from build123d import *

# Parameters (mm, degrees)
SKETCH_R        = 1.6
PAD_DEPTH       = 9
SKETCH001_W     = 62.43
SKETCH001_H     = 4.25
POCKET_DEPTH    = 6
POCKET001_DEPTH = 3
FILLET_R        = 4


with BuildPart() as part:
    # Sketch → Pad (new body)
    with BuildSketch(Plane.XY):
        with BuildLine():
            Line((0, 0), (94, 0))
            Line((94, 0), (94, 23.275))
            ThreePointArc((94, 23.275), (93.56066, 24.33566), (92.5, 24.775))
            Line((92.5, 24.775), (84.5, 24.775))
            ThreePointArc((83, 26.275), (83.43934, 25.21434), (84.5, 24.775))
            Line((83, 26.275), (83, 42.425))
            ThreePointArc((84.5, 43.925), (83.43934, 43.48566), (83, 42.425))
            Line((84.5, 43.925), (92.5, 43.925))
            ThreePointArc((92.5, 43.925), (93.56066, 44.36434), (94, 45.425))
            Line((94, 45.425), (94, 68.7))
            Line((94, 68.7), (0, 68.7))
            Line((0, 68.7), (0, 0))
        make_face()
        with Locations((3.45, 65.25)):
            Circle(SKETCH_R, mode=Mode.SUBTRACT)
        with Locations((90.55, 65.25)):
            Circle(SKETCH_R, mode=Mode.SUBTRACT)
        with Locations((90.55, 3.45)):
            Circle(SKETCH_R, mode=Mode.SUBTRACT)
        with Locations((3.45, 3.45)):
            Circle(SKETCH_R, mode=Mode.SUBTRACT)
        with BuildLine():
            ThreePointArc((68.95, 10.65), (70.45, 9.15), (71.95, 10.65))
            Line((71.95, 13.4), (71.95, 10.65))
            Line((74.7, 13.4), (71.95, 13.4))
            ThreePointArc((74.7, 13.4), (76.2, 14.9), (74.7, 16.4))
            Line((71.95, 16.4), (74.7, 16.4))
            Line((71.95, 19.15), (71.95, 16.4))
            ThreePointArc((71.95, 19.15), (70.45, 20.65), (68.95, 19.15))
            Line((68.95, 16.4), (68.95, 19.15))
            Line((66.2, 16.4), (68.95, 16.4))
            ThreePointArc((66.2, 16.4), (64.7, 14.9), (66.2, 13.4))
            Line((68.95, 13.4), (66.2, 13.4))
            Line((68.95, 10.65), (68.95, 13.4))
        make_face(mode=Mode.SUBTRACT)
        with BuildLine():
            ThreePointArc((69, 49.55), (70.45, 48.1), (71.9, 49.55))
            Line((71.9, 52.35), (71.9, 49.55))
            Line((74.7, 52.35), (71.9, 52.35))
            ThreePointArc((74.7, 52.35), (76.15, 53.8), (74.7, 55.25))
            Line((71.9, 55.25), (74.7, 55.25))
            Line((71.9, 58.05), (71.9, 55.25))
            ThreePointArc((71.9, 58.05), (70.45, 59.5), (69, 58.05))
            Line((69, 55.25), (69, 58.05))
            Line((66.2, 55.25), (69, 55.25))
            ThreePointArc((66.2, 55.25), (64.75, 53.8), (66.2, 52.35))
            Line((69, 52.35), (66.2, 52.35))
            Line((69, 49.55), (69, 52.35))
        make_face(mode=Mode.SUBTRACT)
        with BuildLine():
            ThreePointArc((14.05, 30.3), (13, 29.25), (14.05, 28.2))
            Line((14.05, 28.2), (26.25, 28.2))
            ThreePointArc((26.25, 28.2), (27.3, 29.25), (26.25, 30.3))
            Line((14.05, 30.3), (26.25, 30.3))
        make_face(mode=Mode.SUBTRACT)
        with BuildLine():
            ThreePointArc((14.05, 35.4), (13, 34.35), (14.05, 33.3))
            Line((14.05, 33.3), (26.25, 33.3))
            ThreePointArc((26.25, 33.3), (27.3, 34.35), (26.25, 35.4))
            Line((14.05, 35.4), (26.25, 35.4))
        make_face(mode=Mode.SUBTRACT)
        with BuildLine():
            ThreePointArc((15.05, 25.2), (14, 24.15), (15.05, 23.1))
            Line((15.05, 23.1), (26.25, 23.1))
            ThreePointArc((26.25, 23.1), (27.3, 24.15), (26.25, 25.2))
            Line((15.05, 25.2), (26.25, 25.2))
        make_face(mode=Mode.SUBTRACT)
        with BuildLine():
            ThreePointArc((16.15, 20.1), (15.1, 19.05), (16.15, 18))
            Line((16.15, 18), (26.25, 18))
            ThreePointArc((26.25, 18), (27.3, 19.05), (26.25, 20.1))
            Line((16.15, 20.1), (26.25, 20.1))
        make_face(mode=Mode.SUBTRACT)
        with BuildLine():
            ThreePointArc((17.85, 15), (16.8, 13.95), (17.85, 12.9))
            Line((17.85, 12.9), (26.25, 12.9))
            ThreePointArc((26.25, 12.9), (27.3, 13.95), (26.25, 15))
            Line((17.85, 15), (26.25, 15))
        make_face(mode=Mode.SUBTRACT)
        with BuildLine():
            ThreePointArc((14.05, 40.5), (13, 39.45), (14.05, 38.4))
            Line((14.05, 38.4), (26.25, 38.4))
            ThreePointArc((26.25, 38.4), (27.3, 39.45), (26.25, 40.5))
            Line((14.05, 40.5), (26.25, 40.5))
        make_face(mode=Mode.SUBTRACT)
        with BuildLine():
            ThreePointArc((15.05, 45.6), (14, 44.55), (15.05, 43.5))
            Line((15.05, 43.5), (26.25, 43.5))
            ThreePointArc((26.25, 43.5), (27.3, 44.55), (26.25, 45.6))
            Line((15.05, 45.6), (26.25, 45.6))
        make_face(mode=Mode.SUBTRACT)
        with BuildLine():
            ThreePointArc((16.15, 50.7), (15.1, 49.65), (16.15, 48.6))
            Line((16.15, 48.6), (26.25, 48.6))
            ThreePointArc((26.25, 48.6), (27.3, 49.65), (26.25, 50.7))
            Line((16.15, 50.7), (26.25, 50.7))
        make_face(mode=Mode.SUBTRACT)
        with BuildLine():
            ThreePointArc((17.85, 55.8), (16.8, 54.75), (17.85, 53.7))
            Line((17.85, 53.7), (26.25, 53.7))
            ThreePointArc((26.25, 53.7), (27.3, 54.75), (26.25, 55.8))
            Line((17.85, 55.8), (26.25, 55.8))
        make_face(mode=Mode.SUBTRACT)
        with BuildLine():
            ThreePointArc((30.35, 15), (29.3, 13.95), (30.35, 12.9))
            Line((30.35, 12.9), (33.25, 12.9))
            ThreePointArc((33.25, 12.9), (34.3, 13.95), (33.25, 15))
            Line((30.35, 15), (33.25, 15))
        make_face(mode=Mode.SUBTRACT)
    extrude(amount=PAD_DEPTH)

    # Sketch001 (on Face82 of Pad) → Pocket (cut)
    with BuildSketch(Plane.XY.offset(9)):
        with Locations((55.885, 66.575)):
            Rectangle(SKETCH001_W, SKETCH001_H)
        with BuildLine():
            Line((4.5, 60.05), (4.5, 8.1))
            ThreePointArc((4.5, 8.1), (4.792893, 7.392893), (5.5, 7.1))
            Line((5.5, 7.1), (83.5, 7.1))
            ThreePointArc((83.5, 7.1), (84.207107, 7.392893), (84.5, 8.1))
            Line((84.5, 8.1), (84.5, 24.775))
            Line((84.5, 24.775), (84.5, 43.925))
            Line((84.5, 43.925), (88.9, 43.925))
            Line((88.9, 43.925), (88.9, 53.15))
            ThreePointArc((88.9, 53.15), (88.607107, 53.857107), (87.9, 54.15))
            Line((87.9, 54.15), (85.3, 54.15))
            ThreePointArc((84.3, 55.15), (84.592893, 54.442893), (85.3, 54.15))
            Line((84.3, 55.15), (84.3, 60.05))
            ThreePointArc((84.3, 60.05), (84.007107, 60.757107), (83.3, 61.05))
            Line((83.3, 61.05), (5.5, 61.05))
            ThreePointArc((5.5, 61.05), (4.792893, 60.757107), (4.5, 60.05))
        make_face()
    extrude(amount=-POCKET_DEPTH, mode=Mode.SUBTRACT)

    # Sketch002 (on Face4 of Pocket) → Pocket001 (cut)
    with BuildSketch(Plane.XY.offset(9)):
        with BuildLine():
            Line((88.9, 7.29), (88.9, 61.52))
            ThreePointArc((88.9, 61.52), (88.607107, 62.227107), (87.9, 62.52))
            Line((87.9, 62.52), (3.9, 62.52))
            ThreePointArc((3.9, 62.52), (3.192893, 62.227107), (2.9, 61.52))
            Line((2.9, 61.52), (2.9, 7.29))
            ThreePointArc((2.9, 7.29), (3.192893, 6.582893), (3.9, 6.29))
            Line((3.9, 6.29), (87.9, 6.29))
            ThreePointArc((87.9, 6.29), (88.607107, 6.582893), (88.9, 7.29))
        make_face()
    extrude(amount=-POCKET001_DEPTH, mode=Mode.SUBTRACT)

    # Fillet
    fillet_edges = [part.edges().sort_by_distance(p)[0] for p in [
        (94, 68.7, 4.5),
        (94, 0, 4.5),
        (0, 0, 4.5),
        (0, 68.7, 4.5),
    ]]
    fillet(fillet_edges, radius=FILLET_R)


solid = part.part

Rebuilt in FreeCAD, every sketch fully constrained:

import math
import FreeCAD as App
import Part
import Sketcher
from FreeCAD import Vector
Q = App.Units.Quantity


def edges_at(feature, points):
    """Names of the edges that pass closest to the given points."""
    edges = feature.Shape.Edges
    near = lambda p: min(range(len(edges)), key=lambda i: edges[i].distToShape(Part.Vertex(*p))[0])
    return sorted({f"Edge{near(p) + 1}" for p in points})

doc = App.newDocument("Part")
params = doc.addObject("Spreadsheet::Sheet", "Params")
for row, (alias, value) in enumerate([
    ("sketch1_diameter", "3.2 mm"),
    ("sketch1_radius", "1.500001 mm"),
    ("sketch1_width", "94 mm"),
    ("sketch1_width2", "8 mm"),
    ("sketch1_radius2", "1.05 mm"),
    ("pad1_length", "9 mm"),
    ("sketch2_radius", "0.999999 mm"),
    ("sketch2_width", "78 mm"),
    ("sketch2_width2", "4.4 mm"),
    ("sketch2_width3", "2.6 mm"),
    ("sketch2_height", "4.9 mm"),
    ("pocket1_length", "6 mm"),
    ("sketch3_radius", "0.999999 mm"),
    ("sketch3_width", "84 mm"),
    ("sketch3_height", "54.23 mm"),
    ("pocket2_length", "3 mm"),
    ("fillet_radius", "4 mm"),
], start=1):
    params.set(f"A{row}", alias)
    params.set(f"B{row}", "=" + value)
    params.setAlias(f"B{row}", alias)

body = doc.addObject("PartDesign::Body", "Body")

sketch1 = body.newObject("Sketcher::SketchObject", "Sketch")
sketch1.AttachmentSupport = (doc.getObject("XY_Plane"), [""])
sketch1.MapMode = "FlatFace"
sketch1.addGeometry(Part.LineSegment(Vector(0, 0, 0), Vector(94, 0, 0)), False)
sketch1.addGeometry(Part.LineSegment(Vector(94, 0, 0), Vector(94, 23.275, 0)), False)
sketch1.addGeometry(Part.ArcOfCircle(Part.Circle(Vector(92.499999, 23.274999, 0), Vector(0, 0, 1), 1.500001), math.radians(0.000022), math.radians(89.999978)), False)
sketch1.addGeometry(Part.LineSegment(Vector(92.5, 24.775, 0), Vector(84.5, 24.775, 0)), False)
sketch1.addGeometry(Part.ArcOfCircle(Part.Circle(Vector(84.500001, 26.275001, 0), Vector(0, 0, 1), 1.500001), math.radians(-179.999978), math.radians(-90.000022)), False)
sketch1.addGeometry(Part.LineSegment(Vector(83, 26.275, 0), Vector(83, 42.425, 0)), False)
sketch1.addGeometry(Part.ArcOfCircle(Part.Circle(Vector(84.500001, 42.424999, 0), Vector(0, 0, 1), 1.500001), math.radians(90.000022), math.radians(179.999978)), False)
sketch1.addGeometry(Part.LineSegment(Vector(84.5, 43.925, 0), Vector(92.5, 43.925, 0)), False)
sketch1.addGeometry(Part.ArcOfCircle(Part.Circle(Vector(92.499999, 45.425001, 0), Vector(0, 0, 1), 1.500001), math.radians(-89.999978), math.radians(-0.000022)), False)
sketch1.addGeometry(Part.LineSegment(Vector(94, 45.425, 0), Vector(94, 68.7, 0)), False)
sketch1.addGeometry(Part.LineSegment(Vector(94, 68.7, 0), Vector(0, 68.7, 0)), False)
sketch1.addGeometry(Part.LineSegment(Vector(0, 68.7, 0), Vector(0, 0, 0)), False)
sketch1.addGeometry(Part.Circle(Vector(3.45, 3.45, 0), Vector(0, 0, 1), 1.6), False)
sketch1.addGeometry(Part.ArcOfCircle(Part.Circle(Vector(17.85, 13.95, 0), Vector(0, 0, 1), 1.05), math.radians(90), math.radians(270)), False)
sketch1.addGeometry(Part.LineSegment(Vector(17.85, 15, 0), Vector(26.25, 15, 0)), False)
sketch1.addGeometry(Part.ArcOfCircle(Part.Circle(Vector(26.25, 13.95, 0), Vector(0, 0, 1), 1.05), math.radians(-90), math.radians(90)), False)
sketch1.addGeometry(Part.LineSegment(Vector(26.25, 12.9, 0), Vector(17.85, 12.9, 0)), False)
sketch1.addGeometry(Part.ArcOfCircle(Part.Circle(Vector(30.35, 13.95, 0), Vector(0, 0, 1), 1.05), math.radians(90), math.radians(270)), False)
sketch1.addGeometry(Part.LineSegment(Vector(30.35, 15, 0), Vector(33.25, 15, 0)), False)
sketch1.addGeometry(Part.ArcOfCircle(Part.Circle(Vector(33.25, 13.95, 0), Vector(0, 0, 1), 1.05), math.radians(-90), math.radians(90)), False)
sketch1.addGeometry(Part.LineSegment(Vector(33.25, 12.9, 0), Vector(30.35, 12.9, 0)), False)
sketch1.addGeometry(Part.ArcOfCircle(Part.Circle(Vector(16.15, 19.05, 0), Vector(0, 0, 1), 1.05), math.radians(90), math.radians(270)), False)
sketch1.addGeometry(Part.LineSegment(Vector(16.15, 20.1, 0), Vector(26.25, 20.1, 0)), False)
sketch1.addGeometry(Part.ArcOfCircle(Part.Circle(Vector(26.25, 19.05, 0), Vector(0, 0, 1), 1.05), math.radians(-90), math.radians(90)), False)
sketch1.addGeometry(Part.LineSegment(Vector(26.25, 18, 0), Vector(16.15, 18, 0)), False)
sketch1.addGeometry(Part.ArcOfCircle(Part.Circle(Vector(15.05, 24.15, 0), Vector(0, 0, 1), 1.05), math.radians(90), math.radians(270)), False)
sketch1.addGeometry(Part.LineSegment(Vector(15.05, 25.2, 0), Vector(26.25, 25.2, 0)), False)
sketch1.addGeometry(Part.ArcOfCircle(Part.Circle(Vector(26.25, 24.15, 0), Vector(0, 0, 1), 1.05), math.radians(-90), math.radians(90)), False)
sketch1.addGeometry(Part.LineSegment(Vector(26.25, 23.1, 0), Vector(15.05, 23.1, 0)), False)
sketch1.addGeometry(Part.ArcOfCircle(Part.Circle(Vector(14.05, 29.25, 0), Vector(0, 0, 1), 1.05), math.radians(90), math.radians(270)), False)
sketch1.addGeometry(Part.LineSegment(Vector(14.05, 30.3, 0), Vector(26.25, 30.3, 0)), False)
sketch1.addGeometry(Part.ArcOfCircle(Part.Circle(Vector(26.25, 29.25, 0), Vector(0, 0, 1), 1.05), math.radians(-90), math.radians(90)), False)
sketch1.addGeometry(Part.LineSegment(Vector(26.25, 28.2, 0), Vector(14.05, 28.2, 0)), False)
sketch1.addGeometry(Part.Circle(Vector(90.55, 3.45, 0), Vector(0, 0, 1), 1.6), False)
sketch1.addGeometry(Part.ArcOfCircle(Part.Circle(Vector(70.45, 10.65, 0), Vector(0, 0, 1), 1.5), math.radians(180), math.radians(360)), False)
sketch1.addGeometry(Part.LineSegment(Vector(68.95, 10.65, 0), Vector(68.95, 13.4, 0)), False)
sketch1.addGeometry(Part.LineSegment(Vector(68.95, 13.4, 0), Vector(66.2, 13.4, 0)), False)
sketch1.addGeometry(Part.ArcOfCircle(Part.Circle(Vector(66.2, 14.9, 0), Vector(0, 0, 1), 1.5), math.radians(90), math.radians(270)), False)
sketch1.addGeometry(Part.LineSegment(Vector(66.2, 16.4, 0), Vector(68.95, 16.4, 0)), False)
sketch1.addGeometry(Part.LineSegment(Vector(68.95, 16.4, 0), Vector(68.95, 19.15, 0)), False)
sketch1.addGeometry(Part.ArcOfCircle(Part.Circle(Vector(70.45, 19.15, 0), Vector(0, 0, 1), 1.5), math.radians(0), math.radians(180)), False)
sketch1.addGeometry(Part.LineSegment(Vector(71.95, 19.15, 0), Vector(71.95, 16.4, 0)), False)
sketch1.addGeometry(Part.LineSegment(Vector(71.95, 16.4, 0), Vector(74.7, 16.4, 0)), False)
sketch1.addGeometry(Part.ArcOfCircle(Part.Circle(Vector(74.7, 14.9, 0), Vector(0, 0, 1), 1.5), math.radians(-90), math.radians(90)), False)
sketch1.addGeometry(Part.LineSegment(Vector(74.7, 13.4, 0), Vector(71.95, 13.4, 0)), False)
sketch1.addGeometry(Part.LineSegment(Vector(71.95, 13.4, 0), Vector(71.95, 10.65, 0)), False)
sketch1.addGeometry(Part.ArcOfCircle(Part.Circle(Vector(14.05, 34.35, 0), Vector(0, 0, 1), 1.05), math.radians(90), math.radians(270)), False)
sketch1.addGeometry(Part.LineSegment(Vector(14.05, 35.4, 0), Vector(26.25, 35.4, 0)), False)
sketch1.addGeometry(Part.ArcOfCircle(Part.Circle(Vector(26.25, 34.35, 0), Vector(0, 0, 1), 1.05), math.radians(-90), math.radians(90)), False)
sketch1.addGeometry(Part.LineSegment(Vector(26.25, 33.3, 0), Vector(14.05, 33.3, 0)), False)
sketch1.addGeometry(Part.ArcOfCircle(Part.Circle(Vector(14.05, 39.45, 0), Vector(0, 0, 1), 1.05), math.radians(90), math.radians(270)), False)
sketch1.addGeometry(Part.LineSegment(Vector(14.05, 40.5, 0), Vector(26.25, 40.5, 0)), False)
sketch1.addGeometry(Part.ArcOfCircle(Part.Circle(Vector(26.25, 39.45, 0), Vector(0, 0, 1), 1.05), math.radians(-90), math.radians(90)), False)
sketch1.addGeometry(Part.LineSegment(Vector(26.25, 38.4, 0), Vector(14.05, 38.4, 0)), False)
sketch1.addGeometry(Part.ArcOfCircle(Part.Circle(Vector(15.05, 44.55, 0), Vector(0, 0, 1), 1.05), math.radians(90), math.radians(270)), False)
sketch1.addGeometry(Part.LineSegment(Vector(15.05, 45.6, 0), Vector(26.25, 45.6, 0)), False)
sketch1.addGeometry(Part.ArcOfCircle(Part.Circle(Vector(26.25, 44.55, 0), Vector(0, 0, 1), 1.05), math.radians(-90), math.radians(90)), False)
sketch1.addGeometry(Part.LineSegment(Vector(26.25, 43.5, 0), Vector(15.05, 43.5, 0)), False)
sketch1.addGeometry(Part.ArcOfCircle(Part.Circle(Vector(16.15, 49.65, 0), Vector(0, 0, 1), 1.05), math.radians(90), math.radians(270)), False)
sketch1.addGeometry(Part.LineSegment(Vector(16.15, 50.7, 0), Vector(26.25, 50.7, 0)), False)
sketch1.addGeometry(Part.ArcOfCircle(Part.Circle(Vector(26.25, 49.65, 0), Vector(0, 0, 1), 1.05), math.radians(-90), math.radians(90)), False)
sketch1.addGeometry(Part.LineSegment(Vector(26.25, 48.6, 0), Vector(16.15, 48.6, 0)), False)
sketch1.addGeometry(Part.ArcOfCircle(Part.Circle(Vector(17.85, 54.75, 0), Vector(0, 0, 1), 1.05), math.radians(90), math.radians(270)), False)
sketch1.addGeometry(Part.LineSegment(Vector(17.85, 55.8, 0), Vector(26.25, 55.8, 0)), False)
sketch1.addGeometry(Part.ArcOfCircle(Part.Circle(Vector(26.25, 54.75, 0), Vector(0, 0, 1), 1.05), math.radians(-90), math.radians(90)), False)
sketch1.addGeometry(Part.LineSegment(Vector(26.25, 53.7, 0), Vector(17.85, 53.7, 0)), False)
sketch1.addGeometry(Part.Circle(Vector(3.45, 65.25, 0), Vector(0, 0, 1), 1.6), False)
sketch1.addGeometry(Part.ArcOfCircle(Part.Circle(Vector(70.45, 49.55, 0), Vector(0, 0, 1), 1.45), math.radians(180), math.radians(360)), False)
sketch1.addGeometry(Part.LineSegment(Vector(69, 49.55, 0), Vector(69, 52.35, 0)), False)
sketch1.addGeometry(Part.LineSegment(Vector(69, 52.35, 0), Vector(66.2, 52.35, 0)), False)
sketch1.addGeometry(Part.ArcOfCircle(Part.Circle(Vector(66.2, 53.8, 0), Vector(0, 0, 1), 1.45), math.radians(90), math.radians(270)), False)
sketch1.addGeometry(Part.LineSegment(Vector(66.2, 55.25, 0), Vector(69, 55.25, 0)), False)
sketch1.addGeometry(Part.LineSegment(Vector(69, 55.25, 0), Vector(69, 58.05, 0)), False)
sketch1.addGeometry(Part.ArcOfCircle(Part.Circle(Vector(70.45, 58.05, 0), Vector(0, 0, 1), 1.45), math.radians(0), math.radians(180)), False)
sketch1.addGeometry(Part.LineSegment(Vector(71.9, 58.05, 0), Vector(71.9, 55.25, 0)), False)
sketch1.addGeometry(Part.LineSegment(Vector(71.9, 55.25, 0), Vector(74.7, 55.25, 0)), False)
sketch1.addGeometry(Part.ArcOfCircle(Part.Circle(Vector(74.7, 53.8, 0), Vector(0, 0, 1), 1.45), math.radians(-90), math.radians(90)), False)
sketch1.addGeometry(Part.LineSegment(Vector(74.7, 52.35, 0), Vector(71.9, 52.35, 0)), False)
sketch1.addGeometry(Part.LineSegment(Vector(71.9, 52.35, 0), Vector(71.9, 49.55, 0)), False)
sketch1.addGeometry(Part.Circle(Vector(90.55, 65.25, 0), Vector(0, 0, 1), 1.6), False)
sketch1.addConstraint(Sketcher.Constraint("Coincident", 0, 2, 1, 1))
sketch1.addConstraint(Sketcher.Constraint("Tangent", 1, 2, 2, 1))
sketch1.addConstraint(Sketcher.Constraint("Tangent", 2, 2, 3, 1))
sketch1.addConstraint(Sketcher.Constraint("Tangent", 3, 2, 4, 2))
sketch1.addConstraint(Sketcher.Constraint("Tangent", 4, 1, 5, 1))
sketch1.addConstraint(Sketcher.Constraint("Tangent", 5, 2, 6, 2))
sketch1.addConstraint(Sketcher.Constraint("Tangent", 6, 1, 7, 1))
sketch1.addConstraint(Sketcher.Constraint("Tangent", 7, 2, 8, 1))
sketch1.addConstraint(Sketcher.Constraint("Tangent", 8, 2, 9, 1))
sketch1.addConstraint(Sketcher.Constraint("Coincident", 9, 2, 10, 1))
sketch1.addConstraint(Sketcher.Constraint("Coincident", 10, 2, 11, 1))
sketch1.addConstraint(Sketcher.Constraint("Coincident", 11, 2, 0, 1))
sketch1.addConstraint(Sketcher.Constraint("Tangent", 13, 1, 14, 1))
sketch1.addConstraint(Sketcher.Constraint("Tangent", 14, 2, 15, 2))
sketch1.addConstraint(Sketcher.Constraint("Tangent", 15, 1, 16, 1))
sketch1.addConstraint(Sketcher.Constraint("Tangent", 16, 2, 13, 2))
sketch1.addConstraint(Sketcher.Constraint("Tangent", 17, 1, 18, 1))
sketch1.addConstraint(Sketcher.Constraint("Tangent", 18, 2, 19, 2))
sketch1.addConstraint(Sketcher.Constraint("Tangent", 19, 1, 20, 1))
sketch1.addConstraint(Sketcher.Constraint("Tangent", 20, 2, 17, 2))
sketch1.addConstraint(Sketcher.Constraint("Tangent", 21, 1, 22, 1))
sketch1.addConstraint(Sketcher.Constraint("Tangent", 22, 2, 23, 2))
sketch1.addConstraint(Sketcher.Constraint("Tangent", 23, 1, 24, 1))
sketch1.addConstraint(Sketcher.Constraint("Tangent", 24, 2, 21, 2))
sketch1.addConstraint(Sketcher.Constraint("Tangent", 25, 1, 26, 1))
sketch1.addConstraint(Sketcher.Constraint("Tangent", 26, 2, 27, 2))
sketch1.addConstraint(Sketcher.Constraint("Tangent", 27, 1, 28, 1))
sketch1.addConstraint(Sketcher.Constraint("Tangent", 28, 2, 25, 2))
sketch1.addConstraint(Sketcher.Constraint("Tangent", 29, 1, 30, 1))
sketch1.addConstraint(Sketcher.Constraint("Tangent", 30, 2, 31, 2))
sketch1.addConstraint(Sketcher.Constraint("Tangent", 31, 1, 32, 1))
sketch1.addConstraint(Sketcher.Constraint("Tangent", 32, 2, 29, 2))
sketch1.addConstraint(Sketcher.Constraint("Tangent", 34, 1, 35, 1))
sketch1.addConstraint(Sketcher.Constraint("Coincident", 35, 2, 36, 1))
sketch1.addConstraint(Sketcher.Constraint("Tangent", 36, 2, 37, 2))
sketch1.addConstraint(Sketcher.Constraint("Tangent", 37, 1, 38, 1))
sketch1.addConstraint(Sketcher.Constraint("Coincident", 38, 2, 39, 1))
sketch1.addConstraint(Sketcher.Constraint("Tangent", 39, 2, 40, 2))
sketch1.addConstraint(Sketcher.Constraint("Tangent", 40, 1, 41, 1))
sketch1.addConstraint(Sketcher.Constraint("Coincident", 41, 2, 42, 1))
sketch1.addConstraint(Sketcher.Constraint("Tangent", 42, 2, 43, 2))
sketch1.addConstraint(Sketcher.Constraint("Tangent", 43, 1, 44, 1))
sketch1.addConstraint(Sketcher.Constraint("Coincident", 44, 2, 45, 1))
sketch1.addConstraint(Sketcher.Constraint("Tangent", 45, 2, 34, 2))
sketch1.addConstraint(Sketcher.Constraint("Tangent", 46, 1, 47, 1))
sketch1.addConstraint(Sketcher.Constraint("Tangent", 47, 2, 48, 2))
sketch1.addConstraint(Sketcher.Constraint("Tangent", 48, 1, 49, 1))
sketch1.addConstraint(Sketcher.Constraint("Tangent", 49, 2, 46, 2))
sketch1.addConstraint(Sketcher.Constraint("Tangent", 50, 1, 51, 1))
sketch1.addConstraint(Sketcher.Constraint("Tangent", 51, 2, 52, 2))
sketch1.addConstraint(Sketcher.Constraint("Tangent", 52, 1, 53, 1))
sketch1.addConstraint(Sketcher.Constraint("Tangent", 53, 2, 50, 2))
sketch1.addConstraint(Sketcher.Constraint("Tangent", 54, 1, 55, 1))
sketch1.addConstraint(Sketcher.Constraint("Tangent", 55, 2, 56, 2))
sketch1.addConstraint(Sketcher.Constraint("Tangent", 56, 1, 57, 1))
sketch1.addConstraint(Sketcher.Constraint("Tangent", 57, 2, 54, 2))
sketch1.addConstraint(Sketcher.Constraint("Tangent", 58, 1, 59, 1))
sketch1.addConstraint(Sketcher.Constraint("Tangent", 59, 2, 60, 2))
sketch1.addConstraint(Sketcher.Constraint("Tangent", 60, 1, 61, 1))
sketch1.addConstraint(Sketcher.Constraint("Tangent", 61, 2, 58, 2))
sketch1.addConstraint(Sketcher.Constraint("Tangent", 62, 1, 63, 1))
sketch1.addConstraint(Sketcher.Constraint("Tangent", 63, 2, 64, 2))
sketch1.addConstraint(Sketcher.Constraint("Tangent", 64, 1, 65, 1))
sketch1.addConstraint(Sketcher.Constraint("Tangent", 65, 2, 62, 2))
sketch1.addConstraint(Sketcher.Constraint("Tangent", 67, 1, 68, 1))
sketch1.addConstraint(Sketcher.Constraint("Coincident", 68, 2, 69, 1))
sketch1.addConstraint(Sketcher.Constraint("Tangent", 69, 2, 70, 2))
sketch1.addConstraint(Sketcher.Constraint("Tangent", 70, 1, 71, 1))
sketch1.addConstraint(Sketcher.Constraint("Coincident", 71, 2, 72, 1))
sketch1.addConstraint(Sketcher.Constraint("Tangent", 72, 2, 73, 2))
sketch1.addConstraint(Sketcher.Constraint("Tangent", 73, 1, 74, 1))
sketch1.addConstraint(Sketcher.Constraint("Coincident", 74, 2, 75, 1))
sketch1.addConstraint(Sketcher.Constraint("Tangent", 75, 2, 76, 2))
sketch1.addConstraint(Sketcher.Constraint("Tangent", 76, 1, 77, 1))
sketch1.addConstraint(Sketcher.Constraint("Coincident", 77, 2, 78, 1))
sketch1.addConstraint(Sketcher.Constraint("Tangent", 78, 2, 67, 2))
sketch1.addConstraint(Sketcher.Constraint("Horizontal", 0))
sketch1.addConstraint(Sketcher.Constraint("Vertical", 1))
sketch1.addConstraint(Sketcher.Constraint("Horizontal", 3))
sketch1.addConstraint(Sketcher.Constraint("Vertical", 5))
sketch1.addConstraint(Sketcher.Constraint("Horizontal", 7))
sketch1.addConstraint(Sketcher.Constraint("Vertical", 9))
sketch1.addConstraint(Sketcher.Constraint("Horizontal", 10))
sketch1.addConstraint(Sketcher.Constraint("Vertical", 11))
sketch1.addConstraint(Sketcher.Constraint("Horizontal", 14))
sketch1.addConstraint(Sketcher.Constraint("Horizontal", 16))
sketch1.addConstraint(Sketcher.Constraint("Horizontal", 18))
sketch1.addConstraint(Sketcher.Constraint("Horizontal", 20))
sketch1.addConstraint(Sketcher.Constraint("Horizontal", 22))
sketch1.addConstraint(Sketcher.Constraint("Horizontal", 24))
sketch1.addConstraint(Sketcher.Constraint("Horizontal", 26))
sketch1.addConstraint(Sketcher.Constraint("Horizontal", 28))
sketch1.addConstraint(Sketcher.Constraint("Horizontal", 30))
sketch1.addConstraint(Sketcher.Constraint("Horizontal", 32))
sketch1.addConstraint(Sketcher.Constraint("Vertical", 35))
sketch1.addConstraint(Sketcher.Constraint("Horizontal", 36))
sketch1.addConstraint(Sketcher.Constraint("Horizontal", 38))
sketch1.addConstraint(Sketcher.Constraint("Vertical", 39))
sketch1.addConstraint(Sketcher.Constraint("Vertical", 41))
sketch1.addConstraint(Sketcher.Constraint("Horizontal", 42))
sketch1.addConstraint(Sketcher.Constraint("Horizontal", 44))
sketch1.addConstraint(Sketcher.Constraint("Vertical", 45))
sketch1.addConstraint(Sketcher.Constraint("Horizontal", 47))
sketch1.addConstraint(Sketcher.Constraint("Horizontal", 49))
sketch1.addConstraint(Sketcher.Constraint("Horizontal", 51))
sketch1.addConstraint(Sketcher.Constraint("Horizontal", 53))
sketch1.addConstraint(Sketcher.Constraint("Horizontal", 55))
sketch1.addConstraint(Sketcher.Constraint("Horizontal", 57))
sketch1.addConstraint(Sketcher.Constraint("Horizontal", 59))
sketch1.addConstraint(Sketcher.Constraint("Horizontal", 61))
sketch1.addConstraint(Sketcher.Constraint("Horizontal", 63))
sketch1.addConstraint(Sketcher.Constraint("Horizontal", 65))
sketch1.addConstraint(Sketcher.Constraint("Vertical", 68))
sketch1.addConstraint(Sketcher.Constraint("Horizontal", 69))
sketch1.addConstraint(Sketcher.Constraint("Horizontal", 71))
sketch1.addConstraint(Sketcher.Constraint("Vertical", 72))
sketch1.addConstraint(Sketcher.Constraint("Vertical", 74))
sketch1.addConstraint(Sketcher.Constraint("Horizontal", 75))
sketch1.addConstraint(Sketcher.Constraint("Horizontal", 77))
sketch1.addConstraint(Sketcher.Constraint("Vertical", 78))
sketch1.addConstraint(Sketcher.Constraint("Coincident", 11, 2, -1, 1))
sketch1.addConstraint(Sketcher.Constraint("Equal", 2, 4))
sketch1.addConstraint(Sketcher.Constraint("Equal", 4, 6))
sketch1.addConstraint(Sketcher.Constraint("Equal", 6, 8))
sketch1.addConstraint(Sketcher.Constraint("Equal", 15, 17))
sketch1.addConstraint(Sketcher.Constraint("Equal", 19, 21))
sketch1.addConstraint(Sketcher.Constraint("Equal", 23, 25))
sketch1.addConstraint(Sketcher.Constraint("Equal", 27, 29))
sketch1.addConstraint(Sketcher.Constraint("Equal", 12, 33))
sketch1.addConstraint(Sketcher.Constraint("Equal", 8, 34))
sketch1.addConstraint(Sketcher.Constraint("Equal", 34, 37))
sketch1.addConstraint(Sketcher.Constraint("Equal", 37, 40))
sketch1.addConstraint(Sketcher.Constraint("Equal", 40, 43))
sketch1.addConstraint(Sketcher.Constraint("Equal", 31, 46))
sketch1.addConstraint(Sketcher.Constraint("Equal", 48, 50))
sketch1.addConstraint(Sketcher.Constraint("Equal", 52, 54))
sketch1.addConstraint(Sketcher.Constraint("Equal", 56, 58))
sketch1.addConstraint(Sketcher.Constraint("Equal", 60, 62))
sketch1.addConstraint(Sketcher.Constraint("Equal", 33, 66))
sketch1.addConstraint(Sketcher.Constraint("Equal", 67, 70))
sketch1.addConstraint(Sketcher.Constraint("Equal", 70, 73))
sketch1.addConstraint(Sketcher.Constraint("Equal", 73, 76))
sketch1.addConstraint(Sketcher.Constraint("Equal", 66, 79))
sketch1.addConstraint(Sketcher.Constraint("Horizontal", 15, 3, 17, 3))
sketch1.addConstraint(Sketcher.Constraint("Horizontal", 12, 3, 33, 3))
sketch1.addConstraint(Sketcher.Constraint("Horizontal", 37, 3, 43, 3))
sketch1.addConstraint(Sketcher.Constraint("Horizontal", 70, 3, 76, 3))
sketch1.addConstraint(Sketcher.Constraint("Horizontal", 66, 3, 79, 3))
sketch1.addConstraint(Sketcher.Constraint("Vertical", 2, 3, 8, 3))
sketch1.addConstraint(Sketcher.Constraint("Vertical", 15, 3, 23, 3))
sketch1.addConstraint(Sketcher.Constraint("Vertical", 23, 3, 27, 3))
sketch1.addConstraint(Sketcher.Constraint("Vertical", 27, 3, 31, 3))
sketch1.addConstraint(Sketcher.Constraint("Vertical", 34, 3, 40, 3))
sketch1.addConstraint(Sketcher.Constraint("Vertical", 29, 3, 46, 3))
sketch1.addConstraint(Sketcher.Constraint("Vertical", 31, 3, 48, 3))
sketch1.addConstraint(Sketcher.Constraint("Vertical", 46, 3, 50, 3))
sketch1.addConstraint(Sketcher.Constraint("Vertical", 48, 3, 52, 3))
sketch1.addConstraint(Sketcher.Constraint("Vertical", 25, 3, 54, 3))
sketch1.addConstraint(Sketcher.Constraint("Vertical", 52, 3, 56, 3))
sketch1.addConstraint(Sketcher.Constraint("Vertical", 21, 3, 58, 3))
sketch1.addConstraint(Sketcher.Constraint("Vertical", 56, 3, 60, 3))
sketch1.addConstraint(Sketcher.Constraint("Vertical", 13, 3, 62, 3))
sketch1.addConstraint(Sketcher.Constraint("Vertical", 60, 3, 64, 3))
sketch1.addConstraint(Sketcher.Constraint("Vertical", 12, 3, 66, 3))
sketch1.addConstraint(Sketcher.Constraint("Vertical", 40, 3, 67, 3))
sketch1.addConstraint(Sketcher.Constraint("Vertical", 37, 3, 70, 3))
sketch1.addConstraint(Sketcher.Constraint("Vertical", 67, 3, 73, 3))
sketch1.addConstraint(Sketcher.Constraint("Vertical", 43, 3, 76, 3))
sketch1.addConstraint(Sketcher.Constraint("Vertical", 33, 3, 79, 3))
sketch1.addConstraint(Sketcher.Constraint("Equal", 38, 42))
sketch1.addConstraint(Sketcher.Constraint("Equal", 1, 9))
sketch1.addConstraint(Sketcher.Constraint("Equal", 44, 35))
sketch1.addConstraint(Sketcher.Constraint("Equal", 35, 39))
sketch1.addConstraint(Sketcher.Constraint("Equal", 77, 68))
sketch1.addConstraint(Sketcher.Constraint("Equal", 68, 72))
sketch1.addConstraint(Sketcher.Constraint("Diameter", 12, Q("3.2 mm")))
sketch1.addConstraint(Sketcher.Constraint("Radius", 2, Q("1.500001 mm")))
sketch1.addConstraint(Sketcher.Constraint("DistanceX", 0, 1, 0, 2, Q("94 mm")))
sketch1.addConstraint(Sketcher.Constraint("DistanceX", 3, 2, 3, 1, Q("8 mm")))
sketch1.addConstraint(Sketcher.Constraint("Radius", 13, Q("1.05 mm")))
sketch1.addConstraint(Sketcher.Constraint("Radius", 67, Q("1.45 mm")))
sketch1.addConstraint(Sketcher.Constraint("DistanceX", 14, 1, 14, 2, Q("8.4 mm")))
sketch1.addConstraint(Sketcher.Constraint("DistanceX", 18, 1, 18, 2, Q("2.9 mm")))
sketch1.addConstraint(Sketcher.Constraint("DistanceX", 22, 1, 22, 2, Q("10.1 mm")))
sketch1.addConstraint(Sketcher.Constraint("DistanceX", 26, 1, 26, 2, Q("11.2 mm")))
sketch1.addConstraint(Sketcher.Constraint("DistanceX", 30, 1, 30, 2, Q("12.2 mm")))
sketch1.addConstraint(Sketcher.Constraint("DistanceX", 69, 2, 69, 1, Q("2.8 mm")))
sketch1.addConstraint(Sketcher.Constraint("DistanceY", 11, 2, 11, 1, Q("68.7 mm")))
sketch1.addConstraint(Sketcher.Constraint("DistanceY", -1, 1, 13, 1, Q("15 mm")))
sketch1.addConstraint(Sketcher.Constraint("DistanceY", -1, 1, 23, 1, Q("18 mm")))
sketch1.addConstraint(Sketcher.Constraint("DistanceX", -1, 1, 67, 1, Q("69 mm")))
sketch1.addConstraint(Sketcher.Constraint("DistanceY", 5, 1, 5, 2, Q("16.15 mm")))
sketch1.addConstraint(Sketcher.Constraint("DistanceY", -1, 1, 37, 3, Q("14.9 mm")))
sketch1.addConstraint(Sketcher.Constraint("DistanceY", -1, 1, 70, 3, Q("53.8 mm")))
sketch1.addConstraint(Sketcher.Constraint("DistanceY", -1, 1, 25, 1, Q("25.2 mm")))
sketch1.addConstraint(Sketcher.Constraint("DistanceY", -1, 1, 29, 1, Q("30.3 mm")))
sketch1.addConstraint(Sketcher.Constraint("DistanceY", -1, 1, 46, 1, Q("35.4 mm")))
sketch1.addConstraint(Sketcher.Constraint("DistanceY", -1, 1, 50, 1, Q("40.5 mm")))
sketch1.addConstraint(Sketcher.Constraint("DistanceY", -1, 1, 54, 1, Q("45.6 mm")))
sketch1.addConstraint(Sketcher.Constraint("DistanceY", -1, 1, 58, 1, Q("50.7 mm")))
sketch1.addConstraint(Sketcher.Constraint("DistanceY", -1, 1, 62, 1, Q("55.8 mm")))
sketch1.addConstraint(Sketcher.Constraint("DistanceX", -1, 1, 12, 3, Q("3.45 mm")))
sketch1.addConstraint(Sketcher.Constraint("DistanceY", -1, 1, 12, 3, Q("3.45 mm")))
sketch1.addConstraint(Sketcher.Constraint("DistanceX", -1, 1, 13, 3, Q("17.85 mm")))
sketch1.addConstraint(Sketcher.Constraint("DistanceX", -1, 1, 17, 3, Q("30.35 mm")))
sketch1.addConstraint(Sketcher.Constraint("DistanceX", -1, 1, 33, 3, Q("90.55 mm")))
sketch1.addConstraint(Sketcher.Constraint("DistanceY", -1, 1, 66, 3, Q("65.25 mm")))
sketch1.setExpression("Constraints[175]", "Params.sketch1_diameter")
sketch1.setExpression("Constraints[176]", "Params.sketch1_radius")
sketch1.setExpression("Constraints[177]", "Params.sketch1_width")
sketch1.setExpression("Constraints[178]", "Params.sketch1_width2")
sketch1.setExpression("Constraints[179]", "Params.sketch1_radius2")
pad1 = body.newObject("PartDesign::Pad", "Pad")
pad1.Profile = sketch1
pad1.setExpression("Length", "Params.pad1_length")

sketch2 = body.newObject("Sketcher::SketchObject", "Sketch001")
sketch2.AttachmentSupport = (doc.getObject("XY_Plane"), [""])
sketch2.MapMode = "FlatFace"
sketch2.AttachmentOffset = App.Placement(Vector(0, 0, 9), App.Rotation())
sketch2.addGeometry(Part.LineSegment(Vector(24.67, 68.7, 0), Vector(24.67, 64.45, 0)), False)
sketch2.addGeometry(Part.LineSegment(Vector(24.67, 64.45, 0), Vector(87.1, 64.45, 0)), False)
sketch2.addGeometry(Part.LineSegment(Vector(87.1, 64.45, 0), Vector(87.1, 68.7, 0)), False)
sketch2.addGeometry(Part.LineSegment(Vector(87.1, 68.7, 0), Vector(24.67, 68.7, 0)), False)
sketch2.addGeometry(Part.LineSegment(Vector(4.5, 60.05, 0), Vector(4.5, 8.1, 0)), False)
sketch2.addGeometry(Part.ArcOfCircle(Part.Circle(Vector(5.499999, 8.099999, 0), Vector(0, 0, 1), 0.999999), math.radians(179.999957), math.radians(270.000043)), False)
sketch2.addGeometry(Part.LineSegment(Vector(5.5, 7.1, 0), Vector(83.5, 7.1, 0)), False)
sketch2.addGeometry(Part.ArcOfCircle(Part.Circle(Vector(83.500001, 8.099999, 0), Vector(0, 0, 1), 0.999999), math.radians(-90.000043), math.radians(0.000043)), False)
sketch2.addGeometry(Part.LineSegment(Vector(84.5, 8.1, 0), Vector(84.5, 43.925, 0)), False)
sketch2.addGeometry(Part.LineSegment(Vector(84.5, 43.925, 0), Vector(88.9, 43.925, 0)), False)
sketch2.addGeometry(Part.LineSegment(Vector(88.9, 43.925, 0), Vector(88.9, 53.15, 0)), False)
sketch2.addGeometry(Part.ArcOfCircle(Part.Circle(Vector(87.900001, 53.150001, 0), Vector(0, 0, 1), 0.999999), math.radians(-0.000043), math.radians(90.000043)), False)
sketch2.addGeometry(Part.LineSegment(Vector(87.9, 54.15, 0), Vector(85.3, 54.15, 0)), False)
sketch2.addGeometry(Part.ArcOfCircle(Part.Circle(Vector(85.299999, 55.149999, 0), Vector(0, 0, 1), 0.999999), math.radians(179.999957), math.radians(270.000043)), False)
sketch2.addGeometry(Part.LineSegment(Vector(84.3, 55.15, 0), Vector(84.3, 60.05, 0)), False)
sketch2.addGeometry(Part.ArcOfCircle(Part.Circle(Vector(83.300001, 60.050001, 0), Vector(0, 0, 1), 0.999999), math.radians(-0.000043), math.radians(90.000043)), False)
sketch2.addGeometry(Part.LineSegment(Vector(83.3, 61.05, 0), Vector(5.5, 61.05, 0)), False)
sketch2.addGeometry(Part.ArcOfCircle(Part.Circle(Vector(5.499999, 60.050001, 0), Vector(0, 0, 1), 0.999999), math.radians(89.999957), math.radians(180.000043)), False)
sketch2.addConstraint(Sketcher.Constraint("Coincident", 0, 2, 1, 1))
sketch2.addConstraint(Sketcher.Constraint("Coincident", 1, 2, 2, 1))
sketch2.addConstraint(Sketcher.Constraint("Coincident", 2, 2, 3, 1))
sketch2.addConstraint(Sketcher.Constraint("Coincident", 3, 2, 0, 1))
sketch2.addConstraint(Sketcher.Constraint("Tangent", 4, 2, 5, 1))
sketch2.addConstraint(Sketcher.Constraint("Tangent", 5, 2, 6, 1))
sketch2.addConstraint(Sketcher.Constraint("Tangent", 6, 2, 7, 1))
sketch2.addConstraint(Sketcher.Constraint("Tangent", 7, 2, 8, 1))
sketch2.addConstraint(Sketcher.Constraint("Coincident", 8, 2, 9, 1))
sketch2.addConstraint(Sketcher.Constraint("Coincident", 9, 2, 10, 1))
sketch2.addConstraint(Sketcher.Constraint("Tangent", 10, 2, 11, 1))
sketch2.addConstraint(Sketcher.Constraint("Tangent", 11, 2, 12, 1))
sketch2.addConstraint(Sketcher.Constraint("Tangent", 12, 2, 13, 2))
sketch2.addConstraint(Sketcher.Constraint("Tangent", 13, 1, 14, 1))
sketch2.addConstraint(Sketcher.Constraint("Tangent", 14, 2, 15, 1))
sketch2.addConstraint(Sketcher.Constraint("Tangent", 15, 2, 16, 1))
sketch2.addConstraint(Sketcher.Constraint("Tangent", 16, 2, 17, 1))
sketch2.addConstraint(Sketcher.Constraint("Tangent", 17, 2, 4, 1))
sketch2.addConstraint(Sketcher.Constraint("Vertical", 0))
sketch2.addConstraint(Sketcher.Constraint("Horizontal", 1))
sketch2.addConstraint(Sketcher.Constraint("Vertical", 2))
sketch2.addConstraint(Sketcher.Constraint("Horizontal", 3))
sketch2.addConstraint(Sketcher.Constraint("Vertical", 4))
sketch2.addConstraint(Sketcher.Constraint("Horizontal", 6))
sketch2.addConstraint(Sketcher.Constraint("Vertical", 8))
sketch2.addConstraint(Sketcher.Constraint("Horizontal", 9))
sketch2.addConstraint(Sketcher.Constraint("Vertical", 10))
sketch2.addConstraint(Sketcher.Constraint("Horizontal", 12))
sketch2.addConstraint(Sketcher.Constraint("Vertical", 14))
sketch2.addConstraint(Sketcher.Constraint("Horizontal", 16))
sketch2.addConstraint(Sketcher.Constraint("Equal", 5, 7))
sketch2.addConstraint(Sketcher.Constraint("Equal", 7, 11))
sketch2.addConstraint(Sketcher.Constraint("Equal", 11, 13))
sketch2.addConstraint(Sketcher.Constraint("Equal", 13, 15))
sketch2.addConstraint(Sketcher.Constraint("Equal", 15, 17))
sketch2.addConstraint(Sketcher.Constraint("Radius", 5, Q("0.999999 mm")))
sketch2.addConstraint(Sketcher.Constraint("DistanceX", 6, 1, 6, 2, Q("78 mm")))
sketch2.addConstraint(Sketcher.Constraint("DistanceX", 9, 1, 9, 2, Q("4.4 mm")))
sketch2.addConstraint(Sketcher.Constraint("DistanceX", 12, 2, 12, 1, Q("2.6 mm")))
sketch2.addConstraint(Sketcher.Constraint("DistanceY", 14, 1, 14, 2, Q("4.9 mm")))
sketch2.addConstraint(Sketcher.Constraint("DistanceX", 1, 1, 1, 2, Q("62.43 mm")))
sketch2.addConstraint(Sketcher.Constraint("DistanceY", 0, 2, 0, 1, Q("4.25 mm")))
sketch2.addConstraint(Sketcher.Constraint("DistanceY", 4, 2, 4, 1, Q("51.95 mm")))
sketch2.addConstraint(Sketcher.Constraint("DistanceX", -1, 1, 5, 3, Q("5.499999 mm")))
sketch2.addConstraint(Sketcher.Constraint("DistanceY", -1, 1, 5, 3, Q("8.099999 mm")))
sketch2.addConstraint(Sketcher.Constraint("DistanceX", -1, 1, 1, 2, Q("87.1 mm")))
sketch2.addConstraint(Sketcher.Constraint("DistanceY", -1, 1, 2, 2, Q("68.7 mm")))
sketch2.addConstraint(Sketcher.Constraint("DistanceY", 8, 1, 8, 2, Q("35.825 mm")))
sketch2.setExpression("Constraints[35]", "Params.sketch2_radius")
sketch2.setExpression("Constraints[36]", "Params.sketch2_width")
sketch2.setExpression("Constraints[37]", "Params.sketch2_width2")
sketch2.setExpression("Constraints[38]", "Params.sketch2_width3")
sketch2.setExpression("Constraints[39]", "Params.sketch2_height")
pocket1 = body.newObject("PartDesign::Pocket", "Pocket")
pocket1.Profile = sketch2
pocket1.setExpression("Length", "Params.pocket1_length")

sketch3 = body.newObject("Sketcher::SketchObject", "Sketch002")
sketch3.AttachmentSupport = (doc.getObject("XY_Plane"), [""])
sketch3.MapMode = "FlatFace"
sketch3.AttachmentOffset = App.Placement(Vector(0, 0, 9), App.Rotation())
sketch3.addGeometry(Part.LineSegment(Vector(88.9, 7.29, 0), Vector(88.9, 61.52, 0)), False)
sketch3.addGeometry(Part.ArcOfCircle(Part.Circle(Vector(87.900001, 61.520001, 0), Vector(0, 0, 1), 0.999999), math.radians(-0.000043), math.radians(90.000043)), False)
sketch3.addGeometry(Part.LineSegment(Vector(87.9, 62.52, 0), Vector(3.9, 62.52, 0)), False)
sketch3.addGeometry(Part.ArcOfCircle(Part.Circle(Vector(3.899999, 61.520001, 0), Vector(0, 0, 1), 0.999999), math.radians(89.999957), math.radians(180.000043)), False)
sketch3.addGeometry(Part.LineSegment(Vector(2.9, 61.52, 0), Vector(2.9, 7.29, 0)), False)
sketch3.addGeometry(Part.ArcOfCircle(Part.Circle(Vector(3.899999, 7.289999, 0), Vector(0, 0, 1), 0.999999), math.radians(179.999957), math.radians(270.000043)), False)
sketch3.addGeometry(Part.LineSegment(Vector(3.9, 6.29, 0), Vector(87.9, 6.29, 0)), False)
sketch3.addGeometry(Part.ArcOfCircle(Part.Circle(Vector(87.900001, 7.289999, 0), Vector(0, 0, 1), 0.999999), math.radians(-90.000043), math.radians(0.000043)), False)
sketch3.addConstraint(Sketcher.Constraint("Tangent", 0, 2, 1, 1))
sketch3.addConstraint(Sketcher.Constraint("Tangent", 1, 2, 2, 1))
sketch3.addConstraint(Sketcher.Constraint("Tangent", 2, 2, 3, 1))
sketch3.addConstraint(Sketcher.Constraint("Tangent", 3, 2, 4, 1))
sketch3.addConstraint(Sketcher.Constraint("Tangent", 4, 2, 5, 1))
sketch3.addConstraint(Sketcher.Constraint("Tangent", 5, 2, 6, 1))
sketch3.addConstraint(Sketcher.Constraint("Tangent", 6, 2, 7, 1))
sketch3.addConstraint(Sketcher.Constraint("Tangent", 7, 2, 0, 1))
sketch3.addConstraint(Sketcher.Constraint("Vertical", 0))
sketch3.addConstraint(Sketcher.Constraint("Horizontal", 2))
sketch3.addConstraint(Sketcher.Constraint("Vertical", 4))
sketch3.addConstraint(Sketcher.Constraint("Horizontal", 6))
sketch3.addConstraint(Sketcher.Constraint("Equal", 1, 3))
sketch3.addConstraint(Sketcher.Constraint("Equal", 3, 5))
sketch3.addConstraint(Sketcher.Constraint("Equal", 5, 7))
sketch3.addConstraint(Sketcher.Constraint("Radius", 1, Q("0.999999 mm")))
sketch3.addConstraint(Sketcher.Constraint("DistanceX", 2, 2, 2, 1, Q("84 mm")))
sketch3.addConstraint(Sketcher.Constraint("DistanceY", 0, 1, 0, 2, Q("54.23 mm")))
sketch3.addConstraint(Sketcher.Constraint("DistanceX", -1, 1, 1, 3, Q("87.900001 mm")))
sketch3.addConstraint(Sketcher.Constraint("DistanceY", -1, 1, 1, 3, Q("61.520001 mm")))
sketch3.setExpression("Constraints[15]", "Params.sketch3_radius")
sketch3.setExpression("Constraints[16]", "Params.sketch3_width")
sketch3.setExpression("Constraints[17]", "Params.sketch3_height")
pocket2 = body.newObject("PartDesign::Pocket", "Pocket001")
pocket2.Profile = sketch3
pocket2.setExpression("Length", "Params.pocket2_length")
doc.recompute()

fillet = body.newObject("PartDesign::Fillet", "Fillet")
fillet.Base = (pocket2, edges_at(pocket2, [
    (94, 68.7, 4.5),
    (94, 0, 4.5),
    (0, 0, 4.5),
    (0, 68.7, 4.5),
]))
fillet.setExpression("Radius", "Params.fillet_radius")

doc.recompute()
